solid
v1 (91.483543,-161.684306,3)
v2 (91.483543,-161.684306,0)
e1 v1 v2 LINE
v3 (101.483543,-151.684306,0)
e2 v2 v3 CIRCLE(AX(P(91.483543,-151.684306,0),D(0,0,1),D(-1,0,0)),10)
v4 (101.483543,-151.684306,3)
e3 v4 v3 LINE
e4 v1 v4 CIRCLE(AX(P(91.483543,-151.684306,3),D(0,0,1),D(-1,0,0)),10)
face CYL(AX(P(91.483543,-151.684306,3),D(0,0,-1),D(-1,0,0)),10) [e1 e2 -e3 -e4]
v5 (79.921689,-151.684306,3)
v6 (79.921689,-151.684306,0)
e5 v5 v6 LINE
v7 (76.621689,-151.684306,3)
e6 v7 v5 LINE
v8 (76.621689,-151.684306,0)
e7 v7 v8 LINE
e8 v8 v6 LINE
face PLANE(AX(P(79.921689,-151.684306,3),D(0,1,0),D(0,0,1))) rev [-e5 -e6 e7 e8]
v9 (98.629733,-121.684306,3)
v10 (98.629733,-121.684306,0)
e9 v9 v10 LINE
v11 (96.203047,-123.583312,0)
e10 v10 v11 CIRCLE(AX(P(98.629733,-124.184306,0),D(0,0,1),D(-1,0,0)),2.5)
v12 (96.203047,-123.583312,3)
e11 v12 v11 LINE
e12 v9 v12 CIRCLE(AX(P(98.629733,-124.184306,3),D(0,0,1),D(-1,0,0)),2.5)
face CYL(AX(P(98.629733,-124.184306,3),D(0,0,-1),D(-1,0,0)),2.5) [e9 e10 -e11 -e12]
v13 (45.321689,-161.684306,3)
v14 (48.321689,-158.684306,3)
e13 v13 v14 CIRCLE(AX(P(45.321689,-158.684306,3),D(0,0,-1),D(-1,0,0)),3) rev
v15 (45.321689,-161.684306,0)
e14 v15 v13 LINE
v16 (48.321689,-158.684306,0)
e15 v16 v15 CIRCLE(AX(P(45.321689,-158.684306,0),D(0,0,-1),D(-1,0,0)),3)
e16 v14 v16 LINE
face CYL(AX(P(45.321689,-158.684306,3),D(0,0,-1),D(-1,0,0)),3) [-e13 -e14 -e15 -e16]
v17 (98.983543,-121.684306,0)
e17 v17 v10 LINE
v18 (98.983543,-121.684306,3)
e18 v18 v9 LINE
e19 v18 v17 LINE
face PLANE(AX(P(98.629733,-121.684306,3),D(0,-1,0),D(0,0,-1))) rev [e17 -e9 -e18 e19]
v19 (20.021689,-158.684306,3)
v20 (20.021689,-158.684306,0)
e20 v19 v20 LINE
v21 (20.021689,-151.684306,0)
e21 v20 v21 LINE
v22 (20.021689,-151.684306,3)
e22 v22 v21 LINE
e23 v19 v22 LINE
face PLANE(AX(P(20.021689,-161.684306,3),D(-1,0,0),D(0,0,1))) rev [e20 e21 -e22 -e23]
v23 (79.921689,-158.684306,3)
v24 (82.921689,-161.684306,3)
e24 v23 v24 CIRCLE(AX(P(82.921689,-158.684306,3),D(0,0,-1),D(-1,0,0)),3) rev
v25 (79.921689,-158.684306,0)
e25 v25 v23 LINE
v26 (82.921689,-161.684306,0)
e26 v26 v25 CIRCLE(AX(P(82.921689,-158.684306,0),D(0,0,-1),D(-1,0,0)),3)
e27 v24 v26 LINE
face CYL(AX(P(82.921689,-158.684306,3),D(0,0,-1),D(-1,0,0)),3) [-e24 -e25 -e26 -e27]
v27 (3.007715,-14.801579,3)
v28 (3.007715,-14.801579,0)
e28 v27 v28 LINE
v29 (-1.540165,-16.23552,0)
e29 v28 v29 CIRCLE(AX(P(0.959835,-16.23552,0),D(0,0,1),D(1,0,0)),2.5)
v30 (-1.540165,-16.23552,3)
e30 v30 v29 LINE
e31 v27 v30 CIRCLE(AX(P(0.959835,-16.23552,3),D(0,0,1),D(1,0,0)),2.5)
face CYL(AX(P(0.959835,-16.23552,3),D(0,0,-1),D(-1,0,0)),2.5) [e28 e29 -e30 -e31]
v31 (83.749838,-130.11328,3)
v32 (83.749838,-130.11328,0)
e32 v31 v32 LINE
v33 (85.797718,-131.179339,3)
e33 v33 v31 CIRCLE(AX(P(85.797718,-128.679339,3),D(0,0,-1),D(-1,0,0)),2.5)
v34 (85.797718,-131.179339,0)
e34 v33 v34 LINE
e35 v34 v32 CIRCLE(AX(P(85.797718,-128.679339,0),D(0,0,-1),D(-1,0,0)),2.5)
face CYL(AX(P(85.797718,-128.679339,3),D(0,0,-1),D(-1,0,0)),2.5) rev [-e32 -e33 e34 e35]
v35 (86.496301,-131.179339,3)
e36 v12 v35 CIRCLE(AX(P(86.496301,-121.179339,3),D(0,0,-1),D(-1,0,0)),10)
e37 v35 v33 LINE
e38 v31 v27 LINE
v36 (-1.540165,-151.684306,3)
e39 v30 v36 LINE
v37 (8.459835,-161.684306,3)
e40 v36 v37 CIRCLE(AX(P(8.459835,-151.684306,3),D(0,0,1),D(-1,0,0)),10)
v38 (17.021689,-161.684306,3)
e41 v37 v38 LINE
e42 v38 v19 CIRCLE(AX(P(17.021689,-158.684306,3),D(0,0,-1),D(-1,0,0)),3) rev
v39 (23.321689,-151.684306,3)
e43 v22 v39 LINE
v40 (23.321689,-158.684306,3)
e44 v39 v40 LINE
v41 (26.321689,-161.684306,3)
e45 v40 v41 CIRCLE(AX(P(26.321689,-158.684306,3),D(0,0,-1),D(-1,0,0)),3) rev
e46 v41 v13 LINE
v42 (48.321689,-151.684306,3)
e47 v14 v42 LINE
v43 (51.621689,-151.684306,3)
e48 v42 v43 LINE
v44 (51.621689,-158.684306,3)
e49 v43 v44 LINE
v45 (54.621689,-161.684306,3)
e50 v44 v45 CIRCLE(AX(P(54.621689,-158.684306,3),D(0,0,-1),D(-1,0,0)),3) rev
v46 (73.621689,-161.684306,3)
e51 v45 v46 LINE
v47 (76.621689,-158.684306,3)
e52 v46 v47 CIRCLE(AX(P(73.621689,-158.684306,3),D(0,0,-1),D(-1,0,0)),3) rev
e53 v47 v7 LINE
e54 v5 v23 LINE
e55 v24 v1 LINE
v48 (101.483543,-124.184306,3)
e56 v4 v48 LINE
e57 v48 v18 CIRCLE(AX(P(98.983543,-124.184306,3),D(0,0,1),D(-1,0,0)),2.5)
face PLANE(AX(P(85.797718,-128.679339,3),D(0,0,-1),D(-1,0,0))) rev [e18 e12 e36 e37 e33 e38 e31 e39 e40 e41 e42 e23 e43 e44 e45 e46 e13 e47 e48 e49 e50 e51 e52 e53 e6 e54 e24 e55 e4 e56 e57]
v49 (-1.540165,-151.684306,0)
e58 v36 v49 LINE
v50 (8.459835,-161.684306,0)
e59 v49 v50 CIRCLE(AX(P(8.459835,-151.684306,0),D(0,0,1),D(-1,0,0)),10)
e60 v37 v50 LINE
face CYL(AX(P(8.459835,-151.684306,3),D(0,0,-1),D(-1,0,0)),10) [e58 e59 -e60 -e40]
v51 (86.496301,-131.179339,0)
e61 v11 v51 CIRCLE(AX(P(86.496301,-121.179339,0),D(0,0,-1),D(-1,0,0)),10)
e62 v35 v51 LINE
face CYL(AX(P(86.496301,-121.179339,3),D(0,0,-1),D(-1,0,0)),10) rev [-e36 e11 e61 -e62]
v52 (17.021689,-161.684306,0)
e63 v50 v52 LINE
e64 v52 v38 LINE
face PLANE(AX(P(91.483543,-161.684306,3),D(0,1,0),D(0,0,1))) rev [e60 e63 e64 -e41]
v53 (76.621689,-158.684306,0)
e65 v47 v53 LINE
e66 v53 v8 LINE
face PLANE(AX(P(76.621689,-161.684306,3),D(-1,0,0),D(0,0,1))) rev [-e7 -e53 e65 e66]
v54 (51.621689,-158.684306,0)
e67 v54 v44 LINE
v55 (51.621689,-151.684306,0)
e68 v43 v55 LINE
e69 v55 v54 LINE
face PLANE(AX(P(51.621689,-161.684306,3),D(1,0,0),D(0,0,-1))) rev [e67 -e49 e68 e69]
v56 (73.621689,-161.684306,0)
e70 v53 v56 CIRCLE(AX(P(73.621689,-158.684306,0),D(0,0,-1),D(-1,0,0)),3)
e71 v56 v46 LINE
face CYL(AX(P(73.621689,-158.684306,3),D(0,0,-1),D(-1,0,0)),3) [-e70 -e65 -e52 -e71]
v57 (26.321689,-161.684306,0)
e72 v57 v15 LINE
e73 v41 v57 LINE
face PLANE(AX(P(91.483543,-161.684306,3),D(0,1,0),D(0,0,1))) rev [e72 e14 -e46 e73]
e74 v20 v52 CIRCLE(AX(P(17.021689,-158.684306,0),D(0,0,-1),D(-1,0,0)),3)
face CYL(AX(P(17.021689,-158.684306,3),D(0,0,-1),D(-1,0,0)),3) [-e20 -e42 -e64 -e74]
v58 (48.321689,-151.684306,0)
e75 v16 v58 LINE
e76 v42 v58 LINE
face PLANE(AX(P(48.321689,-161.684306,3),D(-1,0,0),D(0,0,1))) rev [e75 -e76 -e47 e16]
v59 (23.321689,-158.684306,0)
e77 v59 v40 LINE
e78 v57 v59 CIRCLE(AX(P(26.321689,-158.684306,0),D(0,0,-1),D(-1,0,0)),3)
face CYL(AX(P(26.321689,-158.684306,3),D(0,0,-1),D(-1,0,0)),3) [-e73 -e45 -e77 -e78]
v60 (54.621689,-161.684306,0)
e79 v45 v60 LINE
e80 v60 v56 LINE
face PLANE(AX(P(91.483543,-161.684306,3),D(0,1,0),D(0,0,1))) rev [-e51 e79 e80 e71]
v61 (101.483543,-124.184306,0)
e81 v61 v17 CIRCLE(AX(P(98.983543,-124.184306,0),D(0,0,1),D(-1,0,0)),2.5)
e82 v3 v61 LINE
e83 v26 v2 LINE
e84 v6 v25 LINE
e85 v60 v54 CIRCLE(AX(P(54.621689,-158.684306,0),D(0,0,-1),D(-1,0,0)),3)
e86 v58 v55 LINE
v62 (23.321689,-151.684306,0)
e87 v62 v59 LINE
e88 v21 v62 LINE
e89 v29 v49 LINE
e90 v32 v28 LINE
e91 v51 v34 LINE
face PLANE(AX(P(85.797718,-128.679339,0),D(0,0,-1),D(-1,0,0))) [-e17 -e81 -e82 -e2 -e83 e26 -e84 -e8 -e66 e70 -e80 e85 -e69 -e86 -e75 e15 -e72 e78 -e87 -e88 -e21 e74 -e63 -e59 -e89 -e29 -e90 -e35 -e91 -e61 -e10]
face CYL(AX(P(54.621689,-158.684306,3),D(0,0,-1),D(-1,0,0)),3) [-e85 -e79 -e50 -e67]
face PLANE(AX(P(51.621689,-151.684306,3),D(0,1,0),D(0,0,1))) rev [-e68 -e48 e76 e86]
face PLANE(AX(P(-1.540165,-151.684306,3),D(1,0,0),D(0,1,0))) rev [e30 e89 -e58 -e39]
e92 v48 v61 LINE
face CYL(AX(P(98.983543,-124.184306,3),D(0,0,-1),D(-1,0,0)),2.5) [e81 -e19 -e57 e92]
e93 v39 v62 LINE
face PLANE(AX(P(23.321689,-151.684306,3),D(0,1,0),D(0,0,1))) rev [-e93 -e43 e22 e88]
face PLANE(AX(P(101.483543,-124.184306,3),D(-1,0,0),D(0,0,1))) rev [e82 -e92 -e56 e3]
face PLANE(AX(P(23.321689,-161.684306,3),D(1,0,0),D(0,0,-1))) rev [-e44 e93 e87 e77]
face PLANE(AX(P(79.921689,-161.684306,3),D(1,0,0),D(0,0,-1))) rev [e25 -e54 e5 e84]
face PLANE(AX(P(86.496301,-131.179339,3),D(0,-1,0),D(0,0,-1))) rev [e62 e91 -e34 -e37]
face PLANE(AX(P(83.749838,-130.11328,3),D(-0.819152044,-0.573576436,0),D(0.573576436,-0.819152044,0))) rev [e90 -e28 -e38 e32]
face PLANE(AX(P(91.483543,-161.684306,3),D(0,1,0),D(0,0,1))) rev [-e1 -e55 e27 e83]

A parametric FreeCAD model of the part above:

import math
import FreeCAD as App
import Part
import Sketcher

V = App.Vector
Q = App.Units.Quantity


def edges_at(feature, points):
    """Names of the edges that pass closest to the given points."""
    edges = feature.Shape.Edges
    near = lambda p: min(range(len(edges)), key=lambda i: edges[i].distToShape(Part.Vertex(*p))[0])
    return sorted({f"Edge{near(p) + 1}" for p in points})


def add_polygon(sketch, points):
    """Adds a closed chain of lines whose ends are joined by coincident constraints."""
    first, n = sketch.GeometryCount, len(points)
    for a, b in zip(points, points[1:] + points[:1]):
        sketch.addGeometry(Part.LineSegment(App.Vector(*a, 0), App.Vector(*b, 0)), False)
    for i in range(n):
        sketch.addConstraint(Sketcher.Constraint("Coincident", first + i, 2, first + (i + 1) % n, 1))

doc = App.newDocument("Part")
body = doc.addObject("PartDesign::Body", "Body")

# Sketch on XY plane
sketch1 = body.newObject("Sketcher::SketchObject", "Sketch")
sketch1.AttachmentSupport = (doc.getObject("XY_Plane"), [""])
sketch1.MapMode = "FlatFace"
sketch1.addGeometry([
    Part.LineSegment(V(86.5, -131.18, 0), V(85.8, -131.18, 0)),  # 0
    Part.ArcOfCircle(Part.Circle(V(85.8, -128.68, 0), V(0, 0, 1), 2.5), math.radians(-145), math.radians(-90)),  # 1
    Part.LineSegment(V(83.75, -130.11, 0), V(3.01, -14.8, 0)),  # 2
    Part.ArcOfCircle(Part.Circle(V(0.96, -16.24, 0), V(0, 0, 1), 2.5), math.radians(35), math.radians(180)),  # 3
    Part.LineSegment(V(-1.54, -16.24, 0), V(-1.54, -151.68, 0)),  # 4
    Part.ArcOfCircle(Part.Circle(V(8.46, -151.68, 0), V(0, 0, 1), 10), math.radians(-180), math.radians(-90)),  # 5
    Part.LineSegment(V(8.46, -161.68, 0), V(91.48, -161.68, 0)),  # 6
    Part.ArcOfCircle(Part.Circle(V(91.48, -151.68, 0), V(0, 0, 1), 10), math.radians(-90), math.radians(0)),  # 7
    Part.LineSegment(V(101.48, -151.68, 0), V(101.48, -124.18, 0)),  # 8
    Part.ArcOfCircle(Part.Circle(V(98.98, -124.18, 0), V(0, 0, 1), 2.5), math.radians(0), math.radians(90)),  # 9
    Part.LineSegment(V(98.98, -121.68, 0), V(98.63, -121.68, 0)),  # 10
    Part.ArcOfCircle(Part.Circle(V(98.63, -124.18, 0), V(0, 0, 1), 2.5), math.radians(90), math.radians(166)),  # 11
    Part.ArcOfCircle(Part.Circle(V(86.5, -121.18, 0), V(0, 0, 1), 10), math.radians(-90), math.radians(-14)),  # 12
], False)
sketch1.addConstraint([
    Sketcher.Constraint("Tangent", 0, 2, 1, 2),
    Sketcher.Constraint("Tangent", 1, 1, 2, 1),
    Sketcher.Constraint("Tangent", 2, 2, 3, 1),
    Sketcher.Constraint("Tangent", 3, 2, 4, 1),
    Sketcher.Constraint("Tangent", 4, 2, 5, 1),
    Sketcher.Constraint("Tangent", 5, 2, 6, 1),
    Sketcher.Constraint("Tangent", 6, 2, 7, 1),
    Sketcher.Constraint("Tangent", 7, 2, 8, 1),
    Sketcher.Constraint("Tangent", 8, 2, 9, 1),
    Sketcher.Constraint("Tangent", 9, 2, 10, 1),
    Sketcher.Constraint("Tangent", 10, 2, 11, 1),
    Sketcher.Constraint("Tangent", 11, 2, 12, 2),
    Sketcher.Constraint("Tangent", 12, 1, 0, 1),
    Sketcher.Constraint("Horizontal", 0),
    Sketcher.Constraint("Vertical", 4),
    Sketcher.Constraint("Horizontal", 6),
    Sketcher.Constraint("Vertical", 8),
    Sketcher.Constraint("Horizontal", 10),
    Sketcher.Constraint("Equal", 1, 3),
    Sketcher.Constraint("Equal", 5, 7),
    Sketcher.Constraint("Equal", 3, 9),
    Sketcher.Constraint("Equal", 9, 11),
    Sketcher.Constraint("Equal", 7, 12),
    Sketcher.Constraint("Radius", 5, Q("10 mm")),
    Sketcher.Constraint("Radius", 1, Q("2.5 mm")),
    Sketcher.Constraint("Angle", 2, Q("125 deg")),
    Sketcher.Constraint("DistanceY", 8, 1, 8, 2, Q("27.5 mm")),
    Sketcher.Constraint("DistanceX", 10, 2, 10, 1, Q("0.35381 mm")),
    Sketcher.Constraint("DistanceX", -1, 1, 12, 3, Q("86.496301 mm")),
    Sketcher.Constraint("DistanceY", 1, 1, 2, 2, Q("115.311702 mm")),
    Sketcher.Constraint("DistanceX", 0, 2, 0, 1, Q("0.698582 mm")),
    Sketcher.Constraint("DistanceX", 6, 1, 6, 2, Q("83.023708 mm")),
    Sketcher.Constraint("DistanceY", 1, 3, -1, 1, Q("128.679339 mm")),
])
pad1 = body.newObject("PartDesign::Pad", "Pad")
pad1.Profile = sketch1
pad1.Length = 3

# Sketch on XY plane
sketch2 = body.newObject("Sketcher::SketchObject", "Sketch001")
sketch2.AttachmentSupport = (doc.getObject("XY_Plane"), [""])
sketch2.MapMode = "FlatFace"
add_polygon(sketch2, [(51.6, -151.7), (51.6, -161.7), (48.3, -161.7), (48.3, -151.7)])  # lines 0-3
add_polygon(sketch2, [(23.3, -151.7), (23.3, -161.7), (20, -161.7), (20, -151.7)])  # lines 4-7
add_polygon(sketch2, [(79.9, -151.7), (79.9, -161.7), (76.6, -161.7), (76.6, -151.7)])  # lines 8-11
sketch2.addConstraint([
    Sketcher.Constraint("Vertical", 0),
    Sketcher.Constraint("Horizontal", 1),
    Sketcher.Constraint("Vertical", 2),
    Sketcher.Constraint("Horizontal", 3),
    Sketcher.Constraint("Vertical", 4),
    Sketcher.Constraint("Horizontal", 5),
    Sketcher.Constraint("Vertical", 6),
    Sketcher.Constraint("Horizontal", 7),
    Sketcher.Constraint("Vertical", 8),
    Sketcher.Constraint("Horizontal", 9),
    Sketcher.Constraint("Vertical", 10),
    Sketcher.Constraint("Horizontal", 11),
    Sketcher.Constraint("Horizontal", 1, 2, 4, 2),
    Sketcher.Constraint("Horizontal", 3, 2, 6, 2),
    Sketcher.Constraint("Horizontal", 5, 2, 8, 2),
    Sketcher.Constraint("Horizontal", 7, 2, 10, 2),
    Sketcher.Constraint("Equal", 3, 5),
    Sketcher.Constraint("Equal", 7, 9),
    Sketcher.Constraint("DistanceY", 0, 2, 0, 1, Q("10 mm")),
    Sketcher.Constraint("DistanceX", 1, 2, 1, 1, Q("3.3 mm")),
    Sketcher.Constraint("DistanceX", 4, 2, 1, 2, Q("25 mm")),
    Sketcher.Constraint("DistanceX", 0, 2, 9, 2, Q("25 mm")),
    Sketcher.Constraint("DistanceX", -1, 1, 0, 2, Q("51.621689 mm")),
    Sketcher.Constraint("DistanceY", 0, 2, -1, 1, Q("161.684306 mm")),
])
pocket1 = body.newObject("PartDesign::Pocket", "Pocket")
pocket1.Profile = sketch2
pocket1.Type = "ThroughAll"
pocket1.Reversed = True
doc.recompute()

fillet = body.newObject("PartDesign::Fillet", "Fillet")
fillet.Base = (pocket1, edges_at(pocket1, [
    (23.322, -161.684, 1.5),
    (20.022, -161.684, 1.5),
    (76.622, -161.684, 1.5),
    (79.922, -161.684, 1.5),
    (48.322, -161.684, 1.5),
    (51.622, -161.684, 1.5),
]))
fillet.Radius = 3

doc.recompute()
